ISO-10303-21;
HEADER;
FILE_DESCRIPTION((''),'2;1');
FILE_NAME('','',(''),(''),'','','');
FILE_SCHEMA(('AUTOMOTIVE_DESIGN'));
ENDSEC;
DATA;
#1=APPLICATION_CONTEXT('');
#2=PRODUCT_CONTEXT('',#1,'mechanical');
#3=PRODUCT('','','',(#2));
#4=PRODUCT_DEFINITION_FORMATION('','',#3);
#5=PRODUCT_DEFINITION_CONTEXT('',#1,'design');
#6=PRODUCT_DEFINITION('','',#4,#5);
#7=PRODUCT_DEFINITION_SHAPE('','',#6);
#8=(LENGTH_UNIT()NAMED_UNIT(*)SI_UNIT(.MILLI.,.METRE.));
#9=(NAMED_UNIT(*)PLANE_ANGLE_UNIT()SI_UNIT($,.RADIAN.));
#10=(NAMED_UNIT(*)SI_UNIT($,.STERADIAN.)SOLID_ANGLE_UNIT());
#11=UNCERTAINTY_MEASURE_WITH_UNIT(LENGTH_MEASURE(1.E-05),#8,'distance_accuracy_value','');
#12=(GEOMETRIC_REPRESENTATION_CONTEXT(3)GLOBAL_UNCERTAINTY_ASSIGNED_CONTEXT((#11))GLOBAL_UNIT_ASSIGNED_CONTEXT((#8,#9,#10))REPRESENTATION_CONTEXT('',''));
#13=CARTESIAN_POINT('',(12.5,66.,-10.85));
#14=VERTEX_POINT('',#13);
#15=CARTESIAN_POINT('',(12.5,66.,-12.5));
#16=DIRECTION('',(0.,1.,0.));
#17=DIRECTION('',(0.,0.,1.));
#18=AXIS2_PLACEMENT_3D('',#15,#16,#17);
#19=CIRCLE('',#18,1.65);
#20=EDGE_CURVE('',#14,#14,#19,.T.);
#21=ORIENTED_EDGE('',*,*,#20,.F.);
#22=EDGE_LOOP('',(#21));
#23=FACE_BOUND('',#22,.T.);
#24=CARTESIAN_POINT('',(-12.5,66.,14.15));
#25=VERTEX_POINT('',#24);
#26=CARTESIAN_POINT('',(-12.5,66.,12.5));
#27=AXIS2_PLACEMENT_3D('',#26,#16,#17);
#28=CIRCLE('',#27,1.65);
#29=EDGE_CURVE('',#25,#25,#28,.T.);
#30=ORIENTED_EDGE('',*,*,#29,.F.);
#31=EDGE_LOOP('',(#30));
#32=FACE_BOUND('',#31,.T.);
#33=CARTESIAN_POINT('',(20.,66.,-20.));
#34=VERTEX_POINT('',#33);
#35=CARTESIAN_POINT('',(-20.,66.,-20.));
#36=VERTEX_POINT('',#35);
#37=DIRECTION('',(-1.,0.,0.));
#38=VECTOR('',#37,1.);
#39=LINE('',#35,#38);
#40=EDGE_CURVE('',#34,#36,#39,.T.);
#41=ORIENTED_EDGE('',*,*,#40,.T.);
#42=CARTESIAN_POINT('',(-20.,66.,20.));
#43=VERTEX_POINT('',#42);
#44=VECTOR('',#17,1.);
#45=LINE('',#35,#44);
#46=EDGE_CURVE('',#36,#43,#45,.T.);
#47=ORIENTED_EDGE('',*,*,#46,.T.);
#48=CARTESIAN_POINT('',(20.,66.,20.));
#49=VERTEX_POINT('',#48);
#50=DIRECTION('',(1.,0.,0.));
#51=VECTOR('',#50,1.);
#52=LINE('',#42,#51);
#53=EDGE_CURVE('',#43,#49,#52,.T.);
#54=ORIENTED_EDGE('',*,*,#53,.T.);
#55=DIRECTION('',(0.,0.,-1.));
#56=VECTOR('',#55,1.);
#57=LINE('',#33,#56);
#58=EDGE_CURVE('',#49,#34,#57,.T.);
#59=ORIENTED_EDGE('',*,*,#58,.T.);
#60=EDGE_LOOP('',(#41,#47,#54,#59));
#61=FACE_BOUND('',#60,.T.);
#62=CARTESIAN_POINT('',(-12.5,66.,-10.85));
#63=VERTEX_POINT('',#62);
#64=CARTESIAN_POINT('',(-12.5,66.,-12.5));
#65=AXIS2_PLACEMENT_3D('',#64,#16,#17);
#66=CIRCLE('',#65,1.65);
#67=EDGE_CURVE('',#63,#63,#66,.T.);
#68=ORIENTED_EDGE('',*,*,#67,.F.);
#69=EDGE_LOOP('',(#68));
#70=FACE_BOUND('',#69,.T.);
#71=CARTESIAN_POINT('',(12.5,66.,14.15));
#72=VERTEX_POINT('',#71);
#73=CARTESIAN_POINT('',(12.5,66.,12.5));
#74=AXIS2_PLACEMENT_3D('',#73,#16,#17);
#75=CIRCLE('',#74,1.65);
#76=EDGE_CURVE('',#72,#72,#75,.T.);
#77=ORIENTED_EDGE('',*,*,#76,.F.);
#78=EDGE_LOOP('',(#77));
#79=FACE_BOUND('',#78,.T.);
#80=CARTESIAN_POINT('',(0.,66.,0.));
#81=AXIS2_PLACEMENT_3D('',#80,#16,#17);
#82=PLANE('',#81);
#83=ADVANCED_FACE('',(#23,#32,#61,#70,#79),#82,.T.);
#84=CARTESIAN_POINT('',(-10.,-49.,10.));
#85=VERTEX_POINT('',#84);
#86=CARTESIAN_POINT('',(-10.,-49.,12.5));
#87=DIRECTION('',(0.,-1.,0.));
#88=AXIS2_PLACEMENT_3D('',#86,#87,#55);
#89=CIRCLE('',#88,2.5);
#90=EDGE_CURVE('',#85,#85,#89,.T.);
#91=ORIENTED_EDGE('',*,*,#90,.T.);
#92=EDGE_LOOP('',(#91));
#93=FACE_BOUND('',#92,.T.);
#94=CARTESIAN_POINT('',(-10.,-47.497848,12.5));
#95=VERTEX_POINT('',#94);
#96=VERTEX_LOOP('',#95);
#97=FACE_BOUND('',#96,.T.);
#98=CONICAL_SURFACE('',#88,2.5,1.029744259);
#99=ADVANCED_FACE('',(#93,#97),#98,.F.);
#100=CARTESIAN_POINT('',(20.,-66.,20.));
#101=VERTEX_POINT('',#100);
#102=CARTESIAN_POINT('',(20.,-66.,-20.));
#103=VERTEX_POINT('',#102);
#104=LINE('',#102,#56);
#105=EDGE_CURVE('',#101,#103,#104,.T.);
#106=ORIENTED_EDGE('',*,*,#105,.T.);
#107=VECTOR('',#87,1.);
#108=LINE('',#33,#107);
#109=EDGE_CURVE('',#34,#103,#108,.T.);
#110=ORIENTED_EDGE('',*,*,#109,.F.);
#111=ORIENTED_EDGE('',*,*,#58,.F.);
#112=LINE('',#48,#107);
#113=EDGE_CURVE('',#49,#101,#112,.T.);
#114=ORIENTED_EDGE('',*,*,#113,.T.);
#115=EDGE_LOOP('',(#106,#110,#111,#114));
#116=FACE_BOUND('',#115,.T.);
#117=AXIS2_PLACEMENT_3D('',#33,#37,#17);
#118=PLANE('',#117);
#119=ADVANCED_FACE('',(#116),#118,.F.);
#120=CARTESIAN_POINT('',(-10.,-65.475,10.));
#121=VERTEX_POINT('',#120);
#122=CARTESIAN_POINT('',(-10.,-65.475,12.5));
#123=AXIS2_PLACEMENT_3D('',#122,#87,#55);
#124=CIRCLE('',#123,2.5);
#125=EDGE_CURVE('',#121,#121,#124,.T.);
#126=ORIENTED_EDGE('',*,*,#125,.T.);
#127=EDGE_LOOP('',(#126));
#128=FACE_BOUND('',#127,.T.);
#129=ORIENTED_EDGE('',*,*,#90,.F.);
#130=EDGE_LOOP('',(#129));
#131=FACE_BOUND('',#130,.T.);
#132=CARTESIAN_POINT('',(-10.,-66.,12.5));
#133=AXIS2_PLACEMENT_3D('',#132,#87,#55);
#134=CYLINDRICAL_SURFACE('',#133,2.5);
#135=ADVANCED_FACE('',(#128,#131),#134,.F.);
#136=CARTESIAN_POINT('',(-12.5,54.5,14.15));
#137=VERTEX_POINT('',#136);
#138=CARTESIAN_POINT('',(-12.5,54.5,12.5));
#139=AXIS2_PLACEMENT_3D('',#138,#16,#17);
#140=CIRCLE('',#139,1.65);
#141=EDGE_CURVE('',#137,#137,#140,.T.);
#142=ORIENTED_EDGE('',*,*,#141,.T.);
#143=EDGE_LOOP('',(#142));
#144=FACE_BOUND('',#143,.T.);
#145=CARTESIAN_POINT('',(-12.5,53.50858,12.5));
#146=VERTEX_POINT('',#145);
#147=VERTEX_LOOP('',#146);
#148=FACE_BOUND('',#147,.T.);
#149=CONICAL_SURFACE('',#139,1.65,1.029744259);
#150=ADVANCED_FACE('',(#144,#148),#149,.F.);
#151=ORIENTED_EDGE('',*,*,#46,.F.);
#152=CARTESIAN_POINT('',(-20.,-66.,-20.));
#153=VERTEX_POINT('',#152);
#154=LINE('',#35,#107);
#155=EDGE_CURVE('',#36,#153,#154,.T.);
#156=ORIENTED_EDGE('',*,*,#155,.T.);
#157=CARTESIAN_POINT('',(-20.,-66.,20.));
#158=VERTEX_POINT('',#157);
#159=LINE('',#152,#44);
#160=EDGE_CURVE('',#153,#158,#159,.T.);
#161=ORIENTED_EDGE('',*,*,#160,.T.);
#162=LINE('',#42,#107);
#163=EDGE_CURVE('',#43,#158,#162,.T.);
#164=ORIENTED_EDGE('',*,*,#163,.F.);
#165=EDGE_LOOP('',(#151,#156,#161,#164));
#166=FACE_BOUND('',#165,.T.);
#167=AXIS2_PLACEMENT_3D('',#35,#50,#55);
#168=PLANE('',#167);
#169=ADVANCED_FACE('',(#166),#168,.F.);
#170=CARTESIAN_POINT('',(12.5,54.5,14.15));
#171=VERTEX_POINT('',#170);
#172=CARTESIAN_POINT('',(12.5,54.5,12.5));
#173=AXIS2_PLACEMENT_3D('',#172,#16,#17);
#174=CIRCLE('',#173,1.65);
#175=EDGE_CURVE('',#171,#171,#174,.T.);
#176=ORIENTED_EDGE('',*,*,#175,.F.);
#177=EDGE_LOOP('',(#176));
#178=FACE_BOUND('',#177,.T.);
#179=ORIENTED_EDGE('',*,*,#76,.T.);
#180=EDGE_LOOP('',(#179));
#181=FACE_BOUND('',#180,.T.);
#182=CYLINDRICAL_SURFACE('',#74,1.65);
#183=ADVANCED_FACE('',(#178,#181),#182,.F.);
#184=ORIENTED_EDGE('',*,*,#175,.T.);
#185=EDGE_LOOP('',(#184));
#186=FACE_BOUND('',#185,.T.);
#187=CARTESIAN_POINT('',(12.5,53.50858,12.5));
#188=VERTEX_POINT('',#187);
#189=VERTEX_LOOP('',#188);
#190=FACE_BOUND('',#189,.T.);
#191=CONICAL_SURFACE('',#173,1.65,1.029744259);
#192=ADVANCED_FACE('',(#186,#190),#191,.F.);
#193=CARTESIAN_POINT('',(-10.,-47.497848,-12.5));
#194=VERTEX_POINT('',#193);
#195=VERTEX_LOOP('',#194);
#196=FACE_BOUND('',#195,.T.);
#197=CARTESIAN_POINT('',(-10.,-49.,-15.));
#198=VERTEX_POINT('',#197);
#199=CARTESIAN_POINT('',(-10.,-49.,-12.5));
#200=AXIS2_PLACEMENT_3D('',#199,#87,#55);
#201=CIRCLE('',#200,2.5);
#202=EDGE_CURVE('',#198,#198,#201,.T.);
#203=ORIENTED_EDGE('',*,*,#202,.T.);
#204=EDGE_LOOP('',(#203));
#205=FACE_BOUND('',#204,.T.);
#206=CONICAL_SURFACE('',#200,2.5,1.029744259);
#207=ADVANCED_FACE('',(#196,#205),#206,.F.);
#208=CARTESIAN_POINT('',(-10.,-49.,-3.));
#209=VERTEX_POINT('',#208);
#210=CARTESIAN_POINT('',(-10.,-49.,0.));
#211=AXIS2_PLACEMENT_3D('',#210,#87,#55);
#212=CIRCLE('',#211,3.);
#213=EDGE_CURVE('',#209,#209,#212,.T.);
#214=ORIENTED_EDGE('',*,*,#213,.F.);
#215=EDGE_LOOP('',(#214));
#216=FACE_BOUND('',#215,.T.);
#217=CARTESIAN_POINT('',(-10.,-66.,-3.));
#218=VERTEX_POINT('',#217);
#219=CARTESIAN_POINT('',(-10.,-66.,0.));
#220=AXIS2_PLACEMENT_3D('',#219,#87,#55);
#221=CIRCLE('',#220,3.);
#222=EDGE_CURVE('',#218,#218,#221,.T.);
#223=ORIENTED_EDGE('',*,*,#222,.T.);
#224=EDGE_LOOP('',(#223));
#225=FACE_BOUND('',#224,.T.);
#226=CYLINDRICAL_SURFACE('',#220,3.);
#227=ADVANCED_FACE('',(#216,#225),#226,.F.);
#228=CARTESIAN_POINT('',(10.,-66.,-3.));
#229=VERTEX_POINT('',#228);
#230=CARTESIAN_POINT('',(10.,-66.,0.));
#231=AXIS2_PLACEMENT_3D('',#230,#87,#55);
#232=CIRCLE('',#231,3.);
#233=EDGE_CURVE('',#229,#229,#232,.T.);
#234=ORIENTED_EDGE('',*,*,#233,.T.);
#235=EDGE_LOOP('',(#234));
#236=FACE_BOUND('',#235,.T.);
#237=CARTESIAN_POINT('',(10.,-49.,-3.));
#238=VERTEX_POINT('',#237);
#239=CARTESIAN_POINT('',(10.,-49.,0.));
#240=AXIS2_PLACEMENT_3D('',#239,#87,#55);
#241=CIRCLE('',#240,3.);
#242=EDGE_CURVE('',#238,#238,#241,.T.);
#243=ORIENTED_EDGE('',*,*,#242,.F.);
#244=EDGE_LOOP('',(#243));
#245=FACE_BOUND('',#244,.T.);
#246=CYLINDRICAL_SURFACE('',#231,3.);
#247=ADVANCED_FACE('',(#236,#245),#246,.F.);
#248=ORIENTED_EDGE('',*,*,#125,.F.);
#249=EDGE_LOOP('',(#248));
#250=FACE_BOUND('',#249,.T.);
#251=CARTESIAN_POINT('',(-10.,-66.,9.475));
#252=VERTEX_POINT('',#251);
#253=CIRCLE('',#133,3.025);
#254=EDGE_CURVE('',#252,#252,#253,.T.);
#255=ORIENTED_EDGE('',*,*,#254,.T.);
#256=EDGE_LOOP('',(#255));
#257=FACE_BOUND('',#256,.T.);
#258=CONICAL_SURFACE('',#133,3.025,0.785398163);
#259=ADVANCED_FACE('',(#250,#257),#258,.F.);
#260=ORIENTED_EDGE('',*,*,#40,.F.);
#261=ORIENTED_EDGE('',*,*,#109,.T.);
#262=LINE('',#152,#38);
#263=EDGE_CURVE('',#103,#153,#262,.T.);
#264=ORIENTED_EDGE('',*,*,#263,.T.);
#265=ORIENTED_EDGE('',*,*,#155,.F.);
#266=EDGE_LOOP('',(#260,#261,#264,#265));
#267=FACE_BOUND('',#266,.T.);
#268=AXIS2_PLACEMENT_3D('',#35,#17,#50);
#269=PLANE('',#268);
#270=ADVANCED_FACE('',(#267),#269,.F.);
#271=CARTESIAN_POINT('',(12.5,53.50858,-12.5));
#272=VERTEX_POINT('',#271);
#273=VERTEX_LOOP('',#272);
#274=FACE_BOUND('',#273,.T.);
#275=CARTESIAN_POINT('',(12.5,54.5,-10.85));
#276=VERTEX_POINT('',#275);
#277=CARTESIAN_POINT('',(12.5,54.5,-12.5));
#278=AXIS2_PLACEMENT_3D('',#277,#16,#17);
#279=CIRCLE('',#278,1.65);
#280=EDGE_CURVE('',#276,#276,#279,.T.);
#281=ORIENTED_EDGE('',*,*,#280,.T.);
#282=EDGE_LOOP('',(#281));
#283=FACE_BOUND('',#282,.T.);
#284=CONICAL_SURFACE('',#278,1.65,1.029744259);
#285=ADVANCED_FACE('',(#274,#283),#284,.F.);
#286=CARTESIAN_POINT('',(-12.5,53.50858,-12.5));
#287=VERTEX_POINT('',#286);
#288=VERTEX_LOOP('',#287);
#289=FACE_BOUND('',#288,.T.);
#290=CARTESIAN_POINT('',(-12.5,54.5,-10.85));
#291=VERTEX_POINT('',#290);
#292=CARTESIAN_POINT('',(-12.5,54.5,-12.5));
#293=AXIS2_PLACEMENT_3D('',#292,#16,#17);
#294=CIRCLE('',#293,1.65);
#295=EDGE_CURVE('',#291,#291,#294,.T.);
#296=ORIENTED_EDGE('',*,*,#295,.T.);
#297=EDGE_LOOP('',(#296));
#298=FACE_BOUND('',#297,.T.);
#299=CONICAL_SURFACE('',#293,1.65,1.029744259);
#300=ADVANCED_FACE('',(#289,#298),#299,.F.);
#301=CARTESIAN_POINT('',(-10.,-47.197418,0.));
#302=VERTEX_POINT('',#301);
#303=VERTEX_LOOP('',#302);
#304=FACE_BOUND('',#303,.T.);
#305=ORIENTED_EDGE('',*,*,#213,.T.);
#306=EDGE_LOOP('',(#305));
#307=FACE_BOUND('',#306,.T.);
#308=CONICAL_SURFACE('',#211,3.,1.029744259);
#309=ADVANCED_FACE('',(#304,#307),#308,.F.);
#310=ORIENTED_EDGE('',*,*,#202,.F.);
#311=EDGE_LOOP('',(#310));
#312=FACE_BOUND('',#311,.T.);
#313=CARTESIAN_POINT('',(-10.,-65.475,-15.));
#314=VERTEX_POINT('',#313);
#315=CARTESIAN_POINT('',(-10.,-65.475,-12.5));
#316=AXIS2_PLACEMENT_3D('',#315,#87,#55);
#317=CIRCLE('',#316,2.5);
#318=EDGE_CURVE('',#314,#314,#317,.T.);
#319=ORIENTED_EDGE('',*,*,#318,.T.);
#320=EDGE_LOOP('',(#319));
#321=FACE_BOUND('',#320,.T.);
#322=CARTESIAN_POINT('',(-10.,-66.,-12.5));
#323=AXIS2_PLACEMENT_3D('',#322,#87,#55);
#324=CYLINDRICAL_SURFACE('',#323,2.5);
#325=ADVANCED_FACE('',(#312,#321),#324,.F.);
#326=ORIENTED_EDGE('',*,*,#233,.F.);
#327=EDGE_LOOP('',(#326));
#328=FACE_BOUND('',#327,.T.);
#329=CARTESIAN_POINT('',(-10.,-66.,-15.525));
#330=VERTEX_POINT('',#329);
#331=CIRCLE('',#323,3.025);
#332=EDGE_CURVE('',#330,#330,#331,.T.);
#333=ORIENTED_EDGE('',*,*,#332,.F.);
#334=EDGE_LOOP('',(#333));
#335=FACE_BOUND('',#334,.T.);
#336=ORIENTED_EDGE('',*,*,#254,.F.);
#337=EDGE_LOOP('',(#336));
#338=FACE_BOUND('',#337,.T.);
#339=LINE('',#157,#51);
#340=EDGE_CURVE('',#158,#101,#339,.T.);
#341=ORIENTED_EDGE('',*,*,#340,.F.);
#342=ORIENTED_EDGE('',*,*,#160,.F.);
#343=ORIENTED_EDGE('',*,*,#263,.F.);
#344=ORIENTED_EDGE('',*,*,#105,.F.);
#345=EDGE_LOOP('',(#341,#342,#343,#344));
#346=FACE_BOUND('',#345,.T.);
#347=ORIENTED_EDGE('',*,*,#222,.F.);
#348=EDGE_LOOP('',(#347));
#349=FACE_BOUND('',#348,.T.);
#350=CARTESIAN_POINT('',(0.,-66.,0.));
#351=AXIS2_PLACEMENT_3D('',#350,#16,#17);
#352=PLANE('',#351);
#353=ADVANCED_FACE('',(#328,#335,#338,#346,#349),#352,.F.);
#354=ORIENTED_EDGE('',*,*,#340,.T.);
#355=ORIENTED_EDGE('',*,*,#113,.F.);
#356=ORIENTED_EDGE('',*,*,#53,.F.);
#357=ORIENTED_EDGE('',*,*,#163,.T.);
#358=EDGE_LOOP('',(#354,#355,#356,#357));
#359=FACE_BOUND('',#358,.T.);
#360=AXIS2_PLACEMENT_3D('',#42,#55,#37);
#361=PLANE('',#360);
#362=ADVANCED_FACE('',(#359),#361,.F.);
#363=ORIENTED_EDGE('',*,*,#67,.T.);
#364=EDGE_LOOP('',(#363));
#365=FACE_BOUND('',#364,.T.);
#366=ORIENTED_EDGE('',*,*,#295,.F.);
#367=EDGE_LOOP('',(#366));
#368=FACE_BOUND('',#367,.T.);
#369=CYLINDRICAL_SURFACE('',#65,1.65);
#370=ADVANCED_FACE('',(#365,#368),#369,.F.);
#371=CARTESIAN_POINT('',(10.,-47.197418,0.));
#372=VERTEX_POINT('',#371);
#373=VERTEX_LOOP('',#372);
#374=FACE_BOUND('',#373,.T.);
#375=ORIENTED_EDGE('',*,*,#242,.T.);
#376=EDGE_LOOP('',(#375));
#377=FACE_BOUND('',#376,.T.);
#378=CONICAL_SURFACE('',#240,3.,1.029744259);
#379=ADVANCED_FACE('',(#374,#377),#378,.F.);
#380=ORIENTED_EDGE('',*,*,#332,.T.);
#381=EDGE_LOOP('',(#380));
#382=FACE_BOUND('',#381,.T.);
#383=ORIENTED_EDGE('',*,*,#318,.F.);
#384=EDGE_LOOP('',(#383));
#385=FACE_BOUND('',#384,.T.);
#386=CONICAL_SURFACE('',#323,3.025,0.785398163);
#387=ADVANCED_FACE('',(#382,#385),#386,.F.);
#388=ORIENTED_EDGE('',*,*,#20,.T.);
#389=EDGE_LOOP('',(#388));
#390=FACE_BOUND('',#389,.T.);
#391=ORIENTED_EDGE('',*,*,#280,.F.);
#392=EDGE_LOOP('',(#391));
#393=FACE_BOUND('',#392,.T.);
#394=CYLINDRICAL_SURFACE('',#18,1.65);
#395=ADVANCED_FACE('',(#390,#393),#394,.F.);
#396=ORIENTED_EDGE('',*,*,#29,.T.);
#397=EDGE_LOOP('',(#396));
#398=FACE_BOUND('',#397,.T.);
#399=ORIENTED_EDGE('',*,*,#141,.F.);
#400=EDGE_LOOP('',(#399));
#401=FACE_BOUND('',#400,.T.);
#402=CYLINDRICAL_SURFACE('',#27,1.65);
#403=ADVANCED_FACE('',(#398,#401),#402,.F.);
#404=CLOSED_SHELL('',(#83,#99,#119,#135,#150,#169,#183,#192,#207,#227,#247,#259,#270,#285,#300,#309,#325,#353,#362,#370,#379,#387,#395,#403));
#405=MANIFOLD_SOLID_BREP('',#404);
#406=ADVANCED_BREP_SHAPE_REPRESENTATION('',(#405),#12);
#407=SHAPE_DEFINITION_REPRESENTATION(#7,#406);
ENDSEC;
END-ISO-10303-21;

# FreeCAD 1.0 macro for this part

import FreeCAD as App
import Part
import Sketcher

V = App.Vector
Q = App.Units.Quantity

doc = App.newDocument("Part")
params = doc.addObject("Spreadsheet::Sheet", "Params")
for row, (alias, value) in enumerate([
    ("sketch1_width", "40 mm"),
    ("pad1_length", "132 mm"),
    ("sketch2_diameter", "3.3 mm"),
    ("hole_diameter", "3.3 mm"),
    ("hole_depth", "11.5 mm"),
    ("sketch3_diameter", "5 mm"),
    ("hole2_diameter", "5 mm"),
    ("hole2_depth", "17 mm"),
    ("hole2_csink_diameter", "6.05 mm"),
    ("sketch4_diameter", "6 mm"),
    ("hole3_diameter", "6 mm"),
    ("hole3_depth", "17 mm"),
], start=1):
    params.set(f"A{row}", alias)
    params.set(f"B{row}", "=" + value)
    params.setAlias(f"B{row}", alias)

body = doc.addObject("PartDesign::Body", "Body")

# Sketch on XZ plane
sketch1 = body.newObject("Sketcher::SketchObject", "Sketch")
sketch1.AttachmentSupport = (doc.getObject("XZ_Plane"), [""])
sketch1.MapMode = "FlatFace"
sketch1.addGeometry([
    Part.LineSegment(V(-20, -20, 0), V(-20, 20, 0)),
    Part.LineSegment(V(-20, 20, 0), V(20, 20, 0)),
    Part.LineSegment(V(20, 20, 0), V(20, -20, 0)),
    Part.LineSegment(V(20, -20, 0), V(-20, -20, 0)),
], False)
sketch1.addConstraint([
    Sketcher.Constraint("Coincident", 0, 2, 1, 1),
    Sketcher.Constraint("Coincident", 1, 2, 2, 1),
    Sketcher.Constraint("Coincident", 2, 2, 3, 1),
    Sketcher.Constraint("Coincident", 3, 2, 0, 1),
    Sketcher.Constraint("Vertical", 0),
    Sketcher.Constraint("Horizontal", 1),
    Sketcher.Constraint("Vertical", 2),
    Sketcher.Constraint("Horizontal", 3),
    Sketcher.Constraint("Symmetric", 0, 2, 2, 2, -1, 1),
    Sketcher.Constraint("Equal", 3, 0),
    Sketcher.Constraint("DistanceX", 1, 1, 1, 2, Q("40 mm")),
])
sketch1.setExpression("Constraints[10]", "Params.sketch1_width")
pad1 = body.newObject("PartDesign::Pad", "Pad")
pad1.Profile = sketch1
pad1.setExpression("Length", "Params.pad1_length")
pad1.Midplane = True

# Sketch on XZ plane
sketch2 = body.newObject("Sketcher::SketchObject", "Sketch001")
sketch2.AttachmentSupport = (doc.getObject("XZ_Plane"), [""])
sketch2.MapMode = "FlatFace"
sketch2.AttachmentOffset = App.Placement(V(0, 0, -66), App.Rotation())
sketch2.addGeometry([
    Part.Circle(V(-12.5, -12.5, 0), V(0, 0, 1), 1.65),
    Part.Circle(V(12.5, -12.5, 0), V(0, 0, 1), 1.65),
    Part.Circle(V(12.5, 12.5, 0), V(0, 0, 1), 1.65),
    Part.Circle(V(-12.5, 12.5, 0), V(0, 0, 1), 1.65),
], False)
sketch2.addConstraint([
    Sketcher.Constraint("Equal", 0, 1),
    Sketcher.Constraint("Equal", 1, 2),
    Sketcher.Constraint("Equal", 2, 3),
    Sketcher.Constraint("Symmetric", 0, 3, 2, 3, -1, 1),
    Sketcher.Constraint("Symmetric", 1, 3, 3, 3, -1, 1),
    Sketcher.Constraint("Symmetric", 0, 3, 1, 3, -2),
    Sketcher.Constraint("Diameter", 0, Q("3.3 mm")),
    Sketcher.Constraint("DistanceX", 0, 3, 1, 3, Q("25 mm")),
    Sketcher.Constraint("DistanceY", 1, 3, 2, 3, Q("25 mm")),
])
sketch2.setExpression("Constraints[6]", "Params.sketch2_diameter")
doc.recompute()
hole = body.newObject("PartDesign::Hole", "Hole")
hole.Profile = sketch2
hole.ThreadType = "None"
hole.setExpression("Diameter", "Params.hole_diameter")
hole.DepthType = "Dimension"
hole.setExpression("Depth", "Params.hole_depth")
hole.DrillPoint = "Angled"
hole.DrillPointAngle = 118
hole.Reversed = True

# Sketch on XZ plane
sketch3 = body.newObject("Sketcher::SketchObject", "Sketch002")
sketch3.AttachmentSupport = (doc.getObject("XZ_Plane"), [""])
sketch3.MapMode = "FlatFace"
sketch3.AttachmentOffset = App.Placement(V(0, 0, 66), App.Rotation())
sketch3.addGeometry([
    Part.Circle(V(-10, -12.5, 0), V(0, 0, 1), 2.5),
    Part.Circle(V(-10, 12.5, 0), V(0, 0, 1), 2.5),
], False)
sketch3.addConstraint([
    Sketcher.Constraint("Equal", 0, 1),
    Sketcher.Constraint("Symmetric", 0, 3, 1, 3, -1),
    Sketcher.Constraint("Diameter", 0, Q("5 mm")),
    Sketcher.Constraint("DistanceX", 0, 3, -1, 1, Q("10 mm")),
    Sketcher.Constraint("DistanceY", 0, 3, 1, 3, Q("25 mm")),
])
sketch3.setExpression("Constraints[2]", "Params.sketch3_diameter")
doc.recompute()
hole2 = body.newObject("PartDesign::Hole", "Hole001")
hole2.Profile = sketch3
hole2.ThreadType = "None"
hole2.setExpression("Diameter", "Params.hole2_diameter")
hole2.DepthType = "Dimension"
hole2.setExpression("Depth", "Params.hole2_depth")
hole2.DrillPoint = "Angled"
hole2.DrillPointAngle = 118
hole2.HoleCutType = "Countersink"
hole2.setExpression("HoleCutDiameter", "Params.hole2_csink_diameter")
hole2.HoleCutCountersinkAngle = 90

# Sketch on XZ plane
sketch4 = body.newObject("Sketcher::SketchObject", "Sketch003")
sketch4.AttachmentSupport = (doc.getObject("XZ_Plane"), [""])
sketch4.MapMode = "FlatFace"
sketch4.AttachmentOffset = App.Placement(V(0, 0, 66), App.Rotation())
sketch4.addGeometry([
    Part.Circle(V(-10, 0, 0), V(0, 0, 1), 3),
    Part.Circle(V(10, 0, 0), V(0, 0, 1), 3),
], False)
sketch4.addConstraint([
    Sketcher.Constraint("Equal", 0, 1),
    Sketcher.Constraint("Symmetric", 0, 3, 1, 3, -1, 1),
    Sketcher.Constraint("PointOnObject", 0, 3, -1),
    Sketcher.Constraint("Diameter", 0, Q("6 mm")),
    Sketcher.Constraint("DistanceX", 0, 3, -1, 1, Q("10 mm")),
])
sketch4.setExpression("Constraints[3]", "Params.sketch4_diameter")
doc.recompute()
hole3 = body.newObject("PartDesign::Hole", "Hole002")
hole3.Profile = sketch4
hole3.ThreadType = "None"
hole3.setExpression("Diameter", "Params.hole3_diameter")
hole3.DepthType = "Dimension"
hole3.setExpression("Depth", "Params.hole3_depth")
hole3.DrillPoint = "Angled"
hole3.DrillPointAngle = 118

doc.recompute()
